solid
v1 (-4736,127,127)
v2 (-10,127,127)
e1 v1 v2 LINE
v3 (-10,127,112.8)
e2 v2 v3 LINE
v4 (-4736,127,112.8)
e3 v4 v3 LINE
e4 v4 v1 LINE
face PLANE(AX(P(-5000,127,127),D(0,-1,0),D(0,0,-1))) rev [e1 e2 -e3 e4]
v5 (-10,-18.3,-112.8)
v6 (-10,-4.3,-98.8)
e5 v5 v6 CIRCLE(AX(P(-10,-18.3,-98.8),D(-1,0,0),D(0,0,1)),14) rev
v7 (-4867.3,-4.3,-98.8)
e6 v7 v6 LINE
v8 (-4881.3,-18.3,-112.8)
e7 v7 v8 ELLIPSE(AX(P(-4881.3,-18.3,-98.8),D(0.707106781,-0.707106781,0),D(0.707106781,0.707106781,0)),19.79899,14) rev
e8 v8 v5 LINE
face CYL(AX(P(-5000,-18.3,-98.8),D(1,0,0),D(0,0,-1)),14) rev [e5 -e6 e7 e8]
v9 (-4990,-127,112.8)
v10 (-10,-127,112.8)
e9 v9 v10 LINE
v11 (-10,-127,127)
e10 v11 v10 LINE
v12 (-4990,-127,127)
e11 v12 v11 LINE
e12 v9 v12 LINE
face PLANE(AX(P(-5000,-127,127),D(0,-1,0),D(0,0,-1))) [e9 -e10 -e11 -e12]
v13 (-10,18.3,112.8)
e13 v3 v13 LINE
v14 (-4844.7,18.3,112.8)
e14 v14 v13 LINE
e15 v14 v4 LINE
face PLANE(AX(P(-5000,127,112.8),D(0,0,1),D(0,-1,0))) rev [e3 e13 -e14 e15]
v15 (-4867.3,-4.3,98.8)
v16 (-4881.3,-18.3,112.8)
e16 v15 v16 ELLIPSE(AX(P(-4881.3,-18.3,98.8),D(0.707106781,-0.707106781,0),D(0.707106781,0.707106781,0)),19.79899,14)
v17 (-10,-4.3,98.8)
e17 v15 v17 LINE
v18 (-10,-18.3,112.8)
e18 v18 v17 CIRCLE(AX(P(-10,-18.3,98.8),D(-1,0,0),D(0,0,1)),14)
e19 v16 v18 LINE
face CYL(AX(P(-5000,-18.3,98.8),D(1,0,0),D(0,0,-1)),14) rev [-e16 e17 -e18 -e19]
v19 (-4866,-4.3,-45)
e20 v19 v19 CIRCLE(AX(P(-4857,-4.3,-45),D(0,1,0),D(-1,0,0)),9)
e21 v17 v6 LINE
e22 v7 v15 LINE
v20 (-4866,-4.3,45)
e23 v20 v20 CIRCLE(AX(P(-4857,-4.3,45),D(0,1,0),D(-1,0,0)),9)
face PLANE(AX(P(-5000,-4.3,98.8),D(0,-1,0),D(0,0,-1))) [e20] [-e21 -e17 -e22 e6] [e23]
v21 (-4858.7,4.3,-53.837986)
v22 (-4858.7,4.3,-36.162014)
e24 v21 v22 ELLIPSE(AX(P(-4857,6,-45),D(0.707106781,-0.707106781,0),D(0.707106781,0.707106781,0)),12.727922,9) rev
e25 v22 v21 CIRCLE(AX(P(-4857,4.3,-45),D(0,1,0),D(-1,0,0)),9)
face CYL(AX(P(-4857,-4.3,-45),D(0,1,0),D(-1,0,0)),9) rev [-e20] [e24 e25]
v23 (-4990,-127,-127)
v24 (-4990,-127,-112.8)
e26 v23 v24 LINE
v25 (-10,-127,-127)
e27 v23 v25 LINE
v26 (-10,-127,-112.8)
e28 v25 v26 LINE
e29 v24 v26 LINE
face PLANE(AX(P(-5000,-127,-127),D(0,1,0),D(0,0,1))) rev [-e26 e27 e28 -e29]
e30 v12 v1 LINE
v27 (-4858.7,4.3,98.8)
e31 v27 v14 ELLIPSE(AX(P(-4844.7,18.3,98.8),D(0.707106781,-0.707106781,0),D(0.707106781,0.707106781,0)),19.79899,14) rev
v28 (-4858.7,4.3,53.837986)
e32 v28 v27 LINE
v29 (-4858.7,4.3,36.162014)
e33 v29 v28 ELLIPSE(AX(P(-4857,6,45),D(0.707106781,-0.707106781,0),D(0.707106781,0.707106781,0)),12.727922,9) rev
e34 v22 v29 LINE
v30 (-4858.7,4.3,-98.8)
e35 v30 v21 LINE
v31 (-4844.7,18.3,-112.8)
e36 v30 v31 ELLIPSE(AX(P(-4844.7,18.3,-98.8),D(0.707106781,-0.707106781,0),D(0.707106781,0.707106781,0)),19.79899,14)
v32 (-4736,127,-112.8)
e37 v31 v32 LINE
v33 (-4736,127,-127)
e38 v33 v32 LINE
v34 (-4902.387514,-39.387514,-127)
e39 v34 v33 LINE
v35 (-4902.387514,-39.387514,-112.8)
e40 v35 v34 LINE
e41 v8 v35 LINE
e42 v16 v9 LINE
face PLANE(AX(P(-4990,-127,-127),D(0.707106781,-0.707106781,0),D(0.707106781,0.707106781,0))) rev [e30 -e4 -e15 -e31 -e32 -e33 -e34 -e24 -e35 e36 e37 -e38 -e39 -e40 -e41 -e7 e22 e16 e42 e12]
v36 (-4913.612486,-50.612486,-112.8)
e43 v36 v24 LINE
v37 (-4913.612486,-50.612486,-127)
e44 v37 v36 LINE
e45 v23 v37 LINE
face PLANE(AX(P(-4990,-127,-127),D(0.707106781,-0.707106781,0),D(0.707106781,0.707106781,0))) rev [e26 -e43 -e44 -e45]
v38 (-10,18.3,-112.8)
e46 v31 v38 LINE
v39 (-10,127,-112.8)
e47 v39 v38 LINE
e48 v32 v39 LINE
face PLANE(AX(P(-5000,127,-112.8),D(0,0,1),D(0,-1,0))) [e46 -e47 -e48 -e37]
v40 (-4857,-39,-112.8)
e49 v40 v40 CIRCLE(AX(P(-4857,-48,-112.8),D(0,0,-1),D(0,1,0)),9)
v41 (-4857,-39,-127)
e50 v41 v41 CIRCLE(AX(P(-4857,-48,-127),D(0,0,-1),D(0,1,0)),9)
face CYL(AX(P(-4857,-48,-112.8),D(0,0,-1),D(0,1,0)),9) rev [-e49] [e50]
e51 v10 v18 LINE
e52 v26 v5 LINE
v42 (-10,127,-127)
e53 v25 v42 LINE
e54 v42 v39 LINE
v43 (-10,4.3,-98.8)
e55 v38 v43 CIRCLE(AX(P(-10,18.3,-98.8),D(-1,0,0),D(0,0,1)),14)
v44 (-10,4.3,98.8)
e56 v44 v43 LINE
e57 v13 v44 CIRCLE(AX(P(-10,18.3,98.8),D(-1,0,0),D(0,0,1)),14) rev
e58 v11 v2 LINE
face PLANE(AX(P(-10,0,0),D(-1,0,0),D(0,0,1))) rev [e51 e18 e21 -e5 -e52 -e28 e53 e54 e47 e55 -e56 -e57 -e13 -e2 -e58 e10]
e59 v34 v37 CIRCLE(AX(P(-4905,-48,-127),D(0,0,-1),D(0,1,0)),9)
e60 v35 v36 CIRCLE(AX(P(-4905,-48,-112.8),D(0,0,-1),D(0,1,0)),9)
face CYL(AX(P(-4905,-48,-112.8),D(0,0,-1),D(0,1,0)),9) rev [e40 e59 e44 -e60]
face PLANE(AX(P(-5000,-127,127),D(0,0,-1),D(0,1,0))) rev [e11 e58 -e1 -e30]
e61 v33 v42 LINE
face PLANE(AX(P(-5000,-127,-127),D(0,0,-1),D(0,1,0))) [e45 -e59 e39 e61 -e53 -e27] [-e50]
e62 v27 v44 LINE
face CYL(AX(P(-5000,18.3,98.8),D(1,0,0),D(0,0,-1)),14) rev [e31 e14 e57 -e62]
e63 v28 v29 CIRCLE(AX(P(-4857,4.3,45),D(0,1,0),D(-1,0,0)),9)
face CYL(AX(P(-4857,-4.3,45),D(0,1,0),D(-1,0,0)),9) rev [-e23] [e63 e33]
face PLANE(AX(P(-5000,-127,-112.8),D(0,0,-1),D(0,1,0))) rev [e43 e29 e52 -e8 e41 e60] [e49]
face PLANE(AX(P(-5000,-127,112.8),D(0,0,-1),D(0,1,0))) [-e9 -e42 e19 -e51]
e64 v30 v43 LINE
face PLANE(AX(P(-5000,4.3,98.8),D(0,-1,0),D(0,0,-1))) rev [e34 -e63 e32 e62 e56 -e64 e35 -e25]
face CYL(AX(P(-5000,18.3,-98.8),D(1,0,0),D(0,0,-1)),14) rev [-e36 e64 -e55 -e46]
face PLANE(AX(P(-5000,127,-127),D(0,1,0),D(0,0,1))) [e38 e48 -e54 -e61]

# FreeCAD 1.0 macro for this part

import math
import FreeCAD as App
import Part
import Sketcher
Q = App.Units.Quantity

doc = App.newDocument("Part")
params = doc.addObject("Spreadsheet::Sheet", "Params")
for row, (alias, value) in enumerate([
    ("sketch1_radius", "14 mm"),
    ("sketch1_width", "254 mm"),
    ("sketch1_width2", "108.7 mm"),
    ("sketch1_height", "14.2 mm"),
    ("sketch1_height2", "197.6 mm"),
    ("pad1_length", "5000 mm"),
    ("sketch2_diameter", "18 mm"),
    ("pocket1_length", "14.2 mm"),
    ("sketch3_diameter", "18 mm"),
    ("pocket2_length", "8.6 mm"),
    ("sketch4_width", "254 mm"),
    ("pocket3_length", "10 mm"),
    ("sketch5_width", "282 mm"),
    ("pocket4_length", "10 mm"),
    ("sketch6_width", "254 mm"),
], start=1):
    params.set(f"A{row}", alias)
    params.set(f"B{row}", "=" + value)
    params.setAlias(f"B{row}", alias)

body = doc.addObject("PartDesign::Body", "Body")

# Sketch on YZ plane
sketch1 = doc.addObject("Sketcher::SketchObject", "Sketch")
body.addObject(sketch1)
sketch1.AttachmentSupport = (doc.YZ_Plane, [""])
sketch1.MapMode = "FlatFace"
sketch1.addGeometry([
    Part.LineSegment(App.Vector(-127, 127, 0), App.Vector(127, 127, 0)),  # 0
    Part.LineSegment(App.Vector(127, 127, 0), App.Vector(127, 113, 0)),  # 1
    Part.LineSegment(App.Vector(127, 113, 0), App.Vector(18, 113, 0)),  # 2
    Part.ArcOfCircle(Part.Circle(App.Vector(18, 99, 0), App.Vector(0, 0, 1), 14), math.radians(90), math.radians(180)),  # 3
    Part.LineSegment(App.Vector(4, 99, 0), App.Vector(4, -99, 0)),  # 4
    Part.ArcOfCircle(Part.Circle(App.Vector(18, -99, 0), App.Vector(0, 0, 1), 14), math.radians(180), math.radians(270)),  # 5
    Part.LineSegment(App.Vector(18, -113, 0), App.Vector(127, -113, 0)),  # 6
    Part.LineSegment(App.Vector(127, -113, 0), App.Vector(127, -127, 0)),  # 7
    Part.LineSegment(App.Vector(127, -127, 0), App.Vector(-127, -127, 0)),  # 8
    Part.LineSegment(App.Vector(-127, -127, 0), App.Vector(-127, -113, 0)),  # 9
    Part.LineSegment(App.Vector(-127, -113, 0), App.Vector(-18, -113, 0)),  # 10
    Part.ArcOfCircle(Part.Circle(App.Vector(-18, -99, 0), App.Vector(0, 0, 1), 14), math.radians(-90), math.radians(0)),  # 11
    Part.LineSegment(App.Vector(-4, -99, 0), App.Vector(-4, 99, 0)),  # 12
    Part.ArcOfCircle(Part.Circle(App.Vector(-18, 99, 0), App.Vector(0, 0, 1), 14), math.radians(0), math.radians(90)),  # 13
    Part.LineSegment(App.Vector(-18, 113, 0), App.Vector(-127, 113, 0)),  # 14
    Part.LineSegment(App.Vector(-127, 113, 0), App.Vector(-127, 127, 0)),  # 15
], False)
sketch1.addConstraint([
    Sketcher.Constraint("Coincident", 0, 2, 1, 1),
    Sketcher.Constraint("Coincident", 1, 2, 2, 1),
    Sketcher.Constraint("Tangent", 2, 2, 3, 1),
    Sketcher.Constraint("Tangent", 3, 2, 4, 1),
    Sketcher.Constraint("Tangent", 4, 2, 5, 1),
    Sketcher.Constraint("Tangent", 5, 2, 6, 1),
    Sketcher.Constraint("Coincident", 6, 2, 7, 1),
    Sketcher.Constraint("Coincident", 7, 2, 8, 1),
    Sketcher.Constraint("Coincident", 8, 2, 9, 1),
    Sketcher.Constraint("Coincident", 9, 2, 10, 1),
    Sketcher.Constraint("Tangent", 10, 2, 11, 1),
    Sketcher.Constraint("Tangent", 11, 2, 12, 1),
    Sketcher.Constraint("Tangent", 12, 2, 13, 1),
    Sketcher.Constraint("Tangent", 13, 2, 14, 1),
    Sketcher.Constraint("Coincident", 14, 2, 15, 1),
    Sketcher.Constraint("Coincident", 15, 2, 0, 1),
    Sketcher.Constraint("Horizontal", 0),
    Sketcher.Constraint("Vertical", 1),
    Sketcher.Constraint("Horizontal", 2),
    Sketcher.Constraint("Vertical", 4),
    Sketcher.Constraint("Horizontal", 6),
    Sketcher.Constraint("Vertical", 7),
    Sketcher.Constraint("Horizontal", 8),
    Sketcher.Constraint("Vertical", 9),
    Sketcher.Constraint("Horizontal", 10),
    Sketcher.Constraint("Vertical", 12),
    Sketcher.Constraint("Horizontal", 14),
    Sketcher.Constraint("Vertical", 15),
    Sketcher.Constraint("Equal", 3, 5),
    Sketcher.Constraint("Equal", 5, 11),
    Sketcher.Constraint("Equal", 11, 13),
    Sketcher.Constraint("Symmetric", 3, 3, 11, 3, -1, 1),
    Sketcher.Constraint("Symmetric", 0, 2, 8, 2, -1, 1),
    Sketcher.Constraint("Symmetric", 6, 2, 14, 2, -1, 1),
    Sketcher.Constraint("Symmetric", 6, 2, 9, 2, -2),
    Sketcher.Constraint("Radius", 3, Q("14 mm")),
    Sketcher.Constraint("DistanceX", 0, 1, 0, 2, Q("254 mm")),
    Sketcher.Constraint("DistanceX", 2, 2, 2, 1, Q("108.7 mm")),
    Sketcher.Constraint("DistanceY", 1, 2, 1, 1, Q("14.2 mm")),
    Sketcher.Constraint("DistanceY", 4, 2, 4, 1, Q("197.6 mm")),
])
sketch1.setExpression("Constraints[35]", "Params.sketch1_radius")
sketch1.setExpression("Constraints[36]", "Params.sketch1_width")
sketch1.setExpression("Constraints[37]", "Params.sketch1_width2")
sketch1.setExpression("Constraints[38]", "Params.sketch1_height")
sketch1.setExpression("Constraints[39]", "Params.sketch1_height2")
pad1 = doc.addObject("PartDesign::Pad", "Pad")
body.addObject(pad1)
pad1.Profile = sketch1
pad1.setExpression("Length", "Params.pad1_length")
pad1.Reversed = True

# Sketch on XY plane
sketch2 = doc.addObject("Sketcher::SketchObject", "Sketch001")
body.addObject(sketch2)
sketch2.AttachmentSupport = (doc.XY_Plane, [""])
sketch2.MapMode = "FlatFace"
sketch2.AttachmentOffset = App.Placement(App.Vector(0, 0, -127), App.Rotation())
sketch2.addGeometry([
    Part.Circle(App.Vector(-4857, -48, 0), App.Vector(0, 0, 1), 9),
    Part.Circle(App.Vector(-4905, -48, 0), App.Vector(0, 0, 1), 9),
    Part.Circle(App.Vector(-4857, 48, 0), App.Vector(0, 0, 1), 9),
    Part.Circle(App.Vector(-4905, 48, 0), App.Vector(0, 0, 1), 9),
], False)
sketch2.addConstraint([
    Sketcher.Constraint("Equal", 0, 1),
    Sketcher.Constraint("Equal", 1, 2),
    Sketcher.Constraint("Equal", 2, 3),
    Sketcher.Constraint("Symmetric", 0, 3, 2, 3, -1),
    Sketcher.Constraint("Symmetric", 1, 3, 3, 3, -1),
    Sketcher.Constraint("Horizontal", 0, 3, 1, 3),
    Sketcher.Constraint("Diameter", 0, Q("18 mm")),
    Sketcher.Constraint("DistanceX", 0, 3, -1, 1, Q("4857 mm")),
    Sketcher.Constraint("DistanceY", 0, 3, -1, 1, Q("48 mm")),
    Sketcher.Constraint("DistanceX", 1, 3, -1, 1, Q("4905 mm")),
])
sketch2.setExpression("Constraints[6]", "Params.sketch2_diameter")
pocket1 = doc.addObject("PartDesign::Pocket", "Pocket")
body.addObject(pocket1)
pocket1.Profile = sketch2
pocket1.setExpression("Length", "Params.pocket1_length")
pocket1.Reversed = True

# Sketch on XZ plane
sketch3 = doc.addObject("Sketcher::SketchObject", "Sketch002")
body.addObject(sketch3)
sketch3.AttachmentSupport = (doc.XZ_Plane, [""])
sketch3.MapMode = "FlatFace"
sketch3.addGeometry([
    Part.Circle(App.Vector(-4857, -45, 0), App.Vector(0, 0, 1), 9),
    Part.Circle(App.Vector(-4857, 45, 0), App.Vector(0, 0, 1), 9),
    Part.Circle(App.Vector(-4905, -45, 0), App.Vector(0, 0, 1), 9),
    Part.Circle(App.Vector(-4905, 45, 0), App.Vector(0, 0, 1), 9),
], False)
sketch3.addConstraint([
    Sketcher.Constraint("Equal", 0, 1),
    Sketcher.Constraint("Equal", 1, 2),
    Sketcher.Constraint("Equal", 2, 3),
    Sketcher.Constraint("Symmetric", 0, 3, 1, 3, -1),
    Sketcher.Constraint("Symmetric", 2, 3, 3, 3, -1),
    Sketcher.Constraint("Horizontal", 0, 3, 2, 3),
    Sketcher.Constraint("Diameter", 0, Q("18 mm")),
    Sketcher.Constraint("DistanceX", 0, 3, -1, 1, Q("4857 mm")),
    Sketcher.Constraint("DistanceY", 0, 3, -1, 1, Q("45 mm")),
    Sketcher.Constraint("DistanceX", 2, 3, -1, 1, Q("4905 mm")),
])
sketch3.setExpression("Constraints[6]", "Params.sketch3_diameter")
pocket2 = doc.addObject("PartDesign::Pocket", "Pocket001")
body.addObject(pocket2)
pocket2.Profile = sketch3
pocket2.setExpression("Length", "Params.pocket2_length")
pocket2.Midplane = True

# Sketch on YZ plane
sketch4 = doc.addObject("Sketcher::SketchObject", "Sketch003")
body.addObject(sketch4)
sketch4.AttachmentSupport = (doc.YZ_Plane, [""])
sketch4.MapMode = "FlatFace"
sketch4.AttachmentOffset = App.Placement(App.Vector(0, 0, -5000), App.Rotation())
sketch4.addGeometry([
    Part.LineSegment(App.Vector(-127, -127, 0), App.Vector(-127, 127, 0)),
    Part.LineSegment(App.Vector(-127, 127, 0), App.Vector(127, 127, 0)),
    Part.LineSegment(App.Vector(127, 127, 0), App.Vector(127, -127, 0)),
    Part.LineSegment(App.Vector(127, -127, 0), App.Vector(-127, -127, 0)),
], False)
sketch4.addConstraint([
    Sketcher.Constraint("Coincident", 0, 2, 1, 1),
    Sketcher.Constraint("Coincident", 1, 2, 2, 1),
    Sketcher.Constraint("Coincident", 2, 2, 3, 1),
    Sketcher.Constraint("Coincident", 3, 2, 0, 1),
    Sketcher.Constraint("Vertical", 0),
    Sketcher.Constraint("Horizontal", 1),
    Sketcher.Constraint("Vertical", 2),
    Sketcher.Constraint("Horizontal", 3),
    Sketcher.Constraint("Symmetric", 0, 2, 2, 2, -1, 1),
    Sketcher.Constraint("Equal", 3, 0),
    Sketcher.Constraint("DistanceX", 1, 1, 1, 2, Q("254 mm")),
])
sketch4.setExpression("Constraints[10]", "Params.sketch4_width")
pocket3 = doc.addObject("PartDesign::Pocket", "Pocket002")
body.addObject(pocket3)
pocket3.Profile = sketch4
pocket3.setExpression("Length", "Params.pocket3_length")
pocket3.Reversed = True

# Sketch on YZ plane
sketch5 = doc.addObject("Sketcher::SketchObject", "Sketch004")
body.addObject(sketch5)
sketch5.AttachmentSupport = (doc.YZ_Plane, [""])
sketch5.MapMode = "FlatFace"
sketch5.addGeometry([
    Part.LineSegment(App.Vector(-141, -141, 0), App.Vector(-141, 141, 0)),
    Part.LineSegment(App.Vector(-141, 141, 0), App.Vector(141, 141, 0)),
    Part.LineSegment(App.Vector(141, 141, 0), App.Vector(141, -141, 0)),
    Part.LineSegment(App.Vector(141, -141, 0), App.Vector(-141, -141, 0)),
], False)
sketch5.addConstraint([
    Sketcher.Constraint("Coincident", 0, 2, 1, 1),
    Sketcher.Constraint("Coincident", 1, 2, 2, 1),
    Sketcher.Constraint("Coincident", 2, 2, 3, 1),
    Sketcher.Constraint("Coincident", 3, 2, 0, 1),
    Sketcher.Constraint("Vertical", 0),
    Sketcher.Constraint("Horizontal", 1),
    Sketcher.Constraint("Vertical", 2),
    Sketcher.Constraint("Horizontal", 3),
    Sketcher.Constraint("Symmetric", 0, 2, 2, 2, -1, 1),
    Sketcher.Constraint("Equal", 3, 0),
    Sketcher.Constraint("DistanceX", 1, 1, 1, 2, Q("282 mm")),
])
sketch5.setExpression("Constraints[10]", "Params.sketch5_width")
pocket4 = doc.addObject("PartDesign::Pocket", "Pocket003")
body.addObject(pocket4)
pocket4.Profile = sketch5
pocket4.setExpression("Length", "Params.pocket4_length")

# Sketch on XY plane
sketch6 = doc.addObject("Sketcher::SketchObject", "Sketch005")
body.addObject(sketch6)
sketch6.AttachmentSupport = (doc.XY_Plane, [""])
sketch6.MapMode = "FlatFace"
sketch6.AttachmentOffset = App.Placement(App.Vector(0, 0, 127), App.Rotation())
sketch6.addGeometry([
    Part.LineSegment(App.Vector(-4990, -127, 0), App.Vector(-4736, 127, 0)),
    Part.LineSegment(App.Vector(-4736, 127, 0), App.Vector(-4990, 127, 0)),
    Part.LineSegment(App.Vector(-4990, 127, 0), App.Vector(-4990, -127, 0)),
], False)
sketch6.addConstraint([
    Sketcher.Constraint("Coincident", 0, 2, 1, 1),
    Sketcher.Constraint("Coincident", 1, 2, 2, 1),
    Sketcher.Constraint("Coincident", 2, 2, 0, 1),
    Sketcher.Constraint("Horizontal", 1),
    Sketcher.Constraint("Vertical", 2),
    Sketcher.Constraint("Equal", 1, 2),
    Sketcher.Constraint("DistanceX", 1, 2, 1, 1, Q("254 mm")),
    Sketcher.Constraint("DistanceX", 0, 2, -1, 1, Q("4736 mm")),
    Sketcher.Constraint("DistanceY", -1, 1, 0, 2, Q("127 mm")),
])
sketch6.setExpression("Constraints[6]", "Params.sketch6_width")
pocket5 = doc.addObject("PartDesign::Pocket", "Pocket004")
body.addObject(pocket5)
pocket5.Profile = sketch6
pocket5.Type = "ThroughAll"

doc.recompute()
